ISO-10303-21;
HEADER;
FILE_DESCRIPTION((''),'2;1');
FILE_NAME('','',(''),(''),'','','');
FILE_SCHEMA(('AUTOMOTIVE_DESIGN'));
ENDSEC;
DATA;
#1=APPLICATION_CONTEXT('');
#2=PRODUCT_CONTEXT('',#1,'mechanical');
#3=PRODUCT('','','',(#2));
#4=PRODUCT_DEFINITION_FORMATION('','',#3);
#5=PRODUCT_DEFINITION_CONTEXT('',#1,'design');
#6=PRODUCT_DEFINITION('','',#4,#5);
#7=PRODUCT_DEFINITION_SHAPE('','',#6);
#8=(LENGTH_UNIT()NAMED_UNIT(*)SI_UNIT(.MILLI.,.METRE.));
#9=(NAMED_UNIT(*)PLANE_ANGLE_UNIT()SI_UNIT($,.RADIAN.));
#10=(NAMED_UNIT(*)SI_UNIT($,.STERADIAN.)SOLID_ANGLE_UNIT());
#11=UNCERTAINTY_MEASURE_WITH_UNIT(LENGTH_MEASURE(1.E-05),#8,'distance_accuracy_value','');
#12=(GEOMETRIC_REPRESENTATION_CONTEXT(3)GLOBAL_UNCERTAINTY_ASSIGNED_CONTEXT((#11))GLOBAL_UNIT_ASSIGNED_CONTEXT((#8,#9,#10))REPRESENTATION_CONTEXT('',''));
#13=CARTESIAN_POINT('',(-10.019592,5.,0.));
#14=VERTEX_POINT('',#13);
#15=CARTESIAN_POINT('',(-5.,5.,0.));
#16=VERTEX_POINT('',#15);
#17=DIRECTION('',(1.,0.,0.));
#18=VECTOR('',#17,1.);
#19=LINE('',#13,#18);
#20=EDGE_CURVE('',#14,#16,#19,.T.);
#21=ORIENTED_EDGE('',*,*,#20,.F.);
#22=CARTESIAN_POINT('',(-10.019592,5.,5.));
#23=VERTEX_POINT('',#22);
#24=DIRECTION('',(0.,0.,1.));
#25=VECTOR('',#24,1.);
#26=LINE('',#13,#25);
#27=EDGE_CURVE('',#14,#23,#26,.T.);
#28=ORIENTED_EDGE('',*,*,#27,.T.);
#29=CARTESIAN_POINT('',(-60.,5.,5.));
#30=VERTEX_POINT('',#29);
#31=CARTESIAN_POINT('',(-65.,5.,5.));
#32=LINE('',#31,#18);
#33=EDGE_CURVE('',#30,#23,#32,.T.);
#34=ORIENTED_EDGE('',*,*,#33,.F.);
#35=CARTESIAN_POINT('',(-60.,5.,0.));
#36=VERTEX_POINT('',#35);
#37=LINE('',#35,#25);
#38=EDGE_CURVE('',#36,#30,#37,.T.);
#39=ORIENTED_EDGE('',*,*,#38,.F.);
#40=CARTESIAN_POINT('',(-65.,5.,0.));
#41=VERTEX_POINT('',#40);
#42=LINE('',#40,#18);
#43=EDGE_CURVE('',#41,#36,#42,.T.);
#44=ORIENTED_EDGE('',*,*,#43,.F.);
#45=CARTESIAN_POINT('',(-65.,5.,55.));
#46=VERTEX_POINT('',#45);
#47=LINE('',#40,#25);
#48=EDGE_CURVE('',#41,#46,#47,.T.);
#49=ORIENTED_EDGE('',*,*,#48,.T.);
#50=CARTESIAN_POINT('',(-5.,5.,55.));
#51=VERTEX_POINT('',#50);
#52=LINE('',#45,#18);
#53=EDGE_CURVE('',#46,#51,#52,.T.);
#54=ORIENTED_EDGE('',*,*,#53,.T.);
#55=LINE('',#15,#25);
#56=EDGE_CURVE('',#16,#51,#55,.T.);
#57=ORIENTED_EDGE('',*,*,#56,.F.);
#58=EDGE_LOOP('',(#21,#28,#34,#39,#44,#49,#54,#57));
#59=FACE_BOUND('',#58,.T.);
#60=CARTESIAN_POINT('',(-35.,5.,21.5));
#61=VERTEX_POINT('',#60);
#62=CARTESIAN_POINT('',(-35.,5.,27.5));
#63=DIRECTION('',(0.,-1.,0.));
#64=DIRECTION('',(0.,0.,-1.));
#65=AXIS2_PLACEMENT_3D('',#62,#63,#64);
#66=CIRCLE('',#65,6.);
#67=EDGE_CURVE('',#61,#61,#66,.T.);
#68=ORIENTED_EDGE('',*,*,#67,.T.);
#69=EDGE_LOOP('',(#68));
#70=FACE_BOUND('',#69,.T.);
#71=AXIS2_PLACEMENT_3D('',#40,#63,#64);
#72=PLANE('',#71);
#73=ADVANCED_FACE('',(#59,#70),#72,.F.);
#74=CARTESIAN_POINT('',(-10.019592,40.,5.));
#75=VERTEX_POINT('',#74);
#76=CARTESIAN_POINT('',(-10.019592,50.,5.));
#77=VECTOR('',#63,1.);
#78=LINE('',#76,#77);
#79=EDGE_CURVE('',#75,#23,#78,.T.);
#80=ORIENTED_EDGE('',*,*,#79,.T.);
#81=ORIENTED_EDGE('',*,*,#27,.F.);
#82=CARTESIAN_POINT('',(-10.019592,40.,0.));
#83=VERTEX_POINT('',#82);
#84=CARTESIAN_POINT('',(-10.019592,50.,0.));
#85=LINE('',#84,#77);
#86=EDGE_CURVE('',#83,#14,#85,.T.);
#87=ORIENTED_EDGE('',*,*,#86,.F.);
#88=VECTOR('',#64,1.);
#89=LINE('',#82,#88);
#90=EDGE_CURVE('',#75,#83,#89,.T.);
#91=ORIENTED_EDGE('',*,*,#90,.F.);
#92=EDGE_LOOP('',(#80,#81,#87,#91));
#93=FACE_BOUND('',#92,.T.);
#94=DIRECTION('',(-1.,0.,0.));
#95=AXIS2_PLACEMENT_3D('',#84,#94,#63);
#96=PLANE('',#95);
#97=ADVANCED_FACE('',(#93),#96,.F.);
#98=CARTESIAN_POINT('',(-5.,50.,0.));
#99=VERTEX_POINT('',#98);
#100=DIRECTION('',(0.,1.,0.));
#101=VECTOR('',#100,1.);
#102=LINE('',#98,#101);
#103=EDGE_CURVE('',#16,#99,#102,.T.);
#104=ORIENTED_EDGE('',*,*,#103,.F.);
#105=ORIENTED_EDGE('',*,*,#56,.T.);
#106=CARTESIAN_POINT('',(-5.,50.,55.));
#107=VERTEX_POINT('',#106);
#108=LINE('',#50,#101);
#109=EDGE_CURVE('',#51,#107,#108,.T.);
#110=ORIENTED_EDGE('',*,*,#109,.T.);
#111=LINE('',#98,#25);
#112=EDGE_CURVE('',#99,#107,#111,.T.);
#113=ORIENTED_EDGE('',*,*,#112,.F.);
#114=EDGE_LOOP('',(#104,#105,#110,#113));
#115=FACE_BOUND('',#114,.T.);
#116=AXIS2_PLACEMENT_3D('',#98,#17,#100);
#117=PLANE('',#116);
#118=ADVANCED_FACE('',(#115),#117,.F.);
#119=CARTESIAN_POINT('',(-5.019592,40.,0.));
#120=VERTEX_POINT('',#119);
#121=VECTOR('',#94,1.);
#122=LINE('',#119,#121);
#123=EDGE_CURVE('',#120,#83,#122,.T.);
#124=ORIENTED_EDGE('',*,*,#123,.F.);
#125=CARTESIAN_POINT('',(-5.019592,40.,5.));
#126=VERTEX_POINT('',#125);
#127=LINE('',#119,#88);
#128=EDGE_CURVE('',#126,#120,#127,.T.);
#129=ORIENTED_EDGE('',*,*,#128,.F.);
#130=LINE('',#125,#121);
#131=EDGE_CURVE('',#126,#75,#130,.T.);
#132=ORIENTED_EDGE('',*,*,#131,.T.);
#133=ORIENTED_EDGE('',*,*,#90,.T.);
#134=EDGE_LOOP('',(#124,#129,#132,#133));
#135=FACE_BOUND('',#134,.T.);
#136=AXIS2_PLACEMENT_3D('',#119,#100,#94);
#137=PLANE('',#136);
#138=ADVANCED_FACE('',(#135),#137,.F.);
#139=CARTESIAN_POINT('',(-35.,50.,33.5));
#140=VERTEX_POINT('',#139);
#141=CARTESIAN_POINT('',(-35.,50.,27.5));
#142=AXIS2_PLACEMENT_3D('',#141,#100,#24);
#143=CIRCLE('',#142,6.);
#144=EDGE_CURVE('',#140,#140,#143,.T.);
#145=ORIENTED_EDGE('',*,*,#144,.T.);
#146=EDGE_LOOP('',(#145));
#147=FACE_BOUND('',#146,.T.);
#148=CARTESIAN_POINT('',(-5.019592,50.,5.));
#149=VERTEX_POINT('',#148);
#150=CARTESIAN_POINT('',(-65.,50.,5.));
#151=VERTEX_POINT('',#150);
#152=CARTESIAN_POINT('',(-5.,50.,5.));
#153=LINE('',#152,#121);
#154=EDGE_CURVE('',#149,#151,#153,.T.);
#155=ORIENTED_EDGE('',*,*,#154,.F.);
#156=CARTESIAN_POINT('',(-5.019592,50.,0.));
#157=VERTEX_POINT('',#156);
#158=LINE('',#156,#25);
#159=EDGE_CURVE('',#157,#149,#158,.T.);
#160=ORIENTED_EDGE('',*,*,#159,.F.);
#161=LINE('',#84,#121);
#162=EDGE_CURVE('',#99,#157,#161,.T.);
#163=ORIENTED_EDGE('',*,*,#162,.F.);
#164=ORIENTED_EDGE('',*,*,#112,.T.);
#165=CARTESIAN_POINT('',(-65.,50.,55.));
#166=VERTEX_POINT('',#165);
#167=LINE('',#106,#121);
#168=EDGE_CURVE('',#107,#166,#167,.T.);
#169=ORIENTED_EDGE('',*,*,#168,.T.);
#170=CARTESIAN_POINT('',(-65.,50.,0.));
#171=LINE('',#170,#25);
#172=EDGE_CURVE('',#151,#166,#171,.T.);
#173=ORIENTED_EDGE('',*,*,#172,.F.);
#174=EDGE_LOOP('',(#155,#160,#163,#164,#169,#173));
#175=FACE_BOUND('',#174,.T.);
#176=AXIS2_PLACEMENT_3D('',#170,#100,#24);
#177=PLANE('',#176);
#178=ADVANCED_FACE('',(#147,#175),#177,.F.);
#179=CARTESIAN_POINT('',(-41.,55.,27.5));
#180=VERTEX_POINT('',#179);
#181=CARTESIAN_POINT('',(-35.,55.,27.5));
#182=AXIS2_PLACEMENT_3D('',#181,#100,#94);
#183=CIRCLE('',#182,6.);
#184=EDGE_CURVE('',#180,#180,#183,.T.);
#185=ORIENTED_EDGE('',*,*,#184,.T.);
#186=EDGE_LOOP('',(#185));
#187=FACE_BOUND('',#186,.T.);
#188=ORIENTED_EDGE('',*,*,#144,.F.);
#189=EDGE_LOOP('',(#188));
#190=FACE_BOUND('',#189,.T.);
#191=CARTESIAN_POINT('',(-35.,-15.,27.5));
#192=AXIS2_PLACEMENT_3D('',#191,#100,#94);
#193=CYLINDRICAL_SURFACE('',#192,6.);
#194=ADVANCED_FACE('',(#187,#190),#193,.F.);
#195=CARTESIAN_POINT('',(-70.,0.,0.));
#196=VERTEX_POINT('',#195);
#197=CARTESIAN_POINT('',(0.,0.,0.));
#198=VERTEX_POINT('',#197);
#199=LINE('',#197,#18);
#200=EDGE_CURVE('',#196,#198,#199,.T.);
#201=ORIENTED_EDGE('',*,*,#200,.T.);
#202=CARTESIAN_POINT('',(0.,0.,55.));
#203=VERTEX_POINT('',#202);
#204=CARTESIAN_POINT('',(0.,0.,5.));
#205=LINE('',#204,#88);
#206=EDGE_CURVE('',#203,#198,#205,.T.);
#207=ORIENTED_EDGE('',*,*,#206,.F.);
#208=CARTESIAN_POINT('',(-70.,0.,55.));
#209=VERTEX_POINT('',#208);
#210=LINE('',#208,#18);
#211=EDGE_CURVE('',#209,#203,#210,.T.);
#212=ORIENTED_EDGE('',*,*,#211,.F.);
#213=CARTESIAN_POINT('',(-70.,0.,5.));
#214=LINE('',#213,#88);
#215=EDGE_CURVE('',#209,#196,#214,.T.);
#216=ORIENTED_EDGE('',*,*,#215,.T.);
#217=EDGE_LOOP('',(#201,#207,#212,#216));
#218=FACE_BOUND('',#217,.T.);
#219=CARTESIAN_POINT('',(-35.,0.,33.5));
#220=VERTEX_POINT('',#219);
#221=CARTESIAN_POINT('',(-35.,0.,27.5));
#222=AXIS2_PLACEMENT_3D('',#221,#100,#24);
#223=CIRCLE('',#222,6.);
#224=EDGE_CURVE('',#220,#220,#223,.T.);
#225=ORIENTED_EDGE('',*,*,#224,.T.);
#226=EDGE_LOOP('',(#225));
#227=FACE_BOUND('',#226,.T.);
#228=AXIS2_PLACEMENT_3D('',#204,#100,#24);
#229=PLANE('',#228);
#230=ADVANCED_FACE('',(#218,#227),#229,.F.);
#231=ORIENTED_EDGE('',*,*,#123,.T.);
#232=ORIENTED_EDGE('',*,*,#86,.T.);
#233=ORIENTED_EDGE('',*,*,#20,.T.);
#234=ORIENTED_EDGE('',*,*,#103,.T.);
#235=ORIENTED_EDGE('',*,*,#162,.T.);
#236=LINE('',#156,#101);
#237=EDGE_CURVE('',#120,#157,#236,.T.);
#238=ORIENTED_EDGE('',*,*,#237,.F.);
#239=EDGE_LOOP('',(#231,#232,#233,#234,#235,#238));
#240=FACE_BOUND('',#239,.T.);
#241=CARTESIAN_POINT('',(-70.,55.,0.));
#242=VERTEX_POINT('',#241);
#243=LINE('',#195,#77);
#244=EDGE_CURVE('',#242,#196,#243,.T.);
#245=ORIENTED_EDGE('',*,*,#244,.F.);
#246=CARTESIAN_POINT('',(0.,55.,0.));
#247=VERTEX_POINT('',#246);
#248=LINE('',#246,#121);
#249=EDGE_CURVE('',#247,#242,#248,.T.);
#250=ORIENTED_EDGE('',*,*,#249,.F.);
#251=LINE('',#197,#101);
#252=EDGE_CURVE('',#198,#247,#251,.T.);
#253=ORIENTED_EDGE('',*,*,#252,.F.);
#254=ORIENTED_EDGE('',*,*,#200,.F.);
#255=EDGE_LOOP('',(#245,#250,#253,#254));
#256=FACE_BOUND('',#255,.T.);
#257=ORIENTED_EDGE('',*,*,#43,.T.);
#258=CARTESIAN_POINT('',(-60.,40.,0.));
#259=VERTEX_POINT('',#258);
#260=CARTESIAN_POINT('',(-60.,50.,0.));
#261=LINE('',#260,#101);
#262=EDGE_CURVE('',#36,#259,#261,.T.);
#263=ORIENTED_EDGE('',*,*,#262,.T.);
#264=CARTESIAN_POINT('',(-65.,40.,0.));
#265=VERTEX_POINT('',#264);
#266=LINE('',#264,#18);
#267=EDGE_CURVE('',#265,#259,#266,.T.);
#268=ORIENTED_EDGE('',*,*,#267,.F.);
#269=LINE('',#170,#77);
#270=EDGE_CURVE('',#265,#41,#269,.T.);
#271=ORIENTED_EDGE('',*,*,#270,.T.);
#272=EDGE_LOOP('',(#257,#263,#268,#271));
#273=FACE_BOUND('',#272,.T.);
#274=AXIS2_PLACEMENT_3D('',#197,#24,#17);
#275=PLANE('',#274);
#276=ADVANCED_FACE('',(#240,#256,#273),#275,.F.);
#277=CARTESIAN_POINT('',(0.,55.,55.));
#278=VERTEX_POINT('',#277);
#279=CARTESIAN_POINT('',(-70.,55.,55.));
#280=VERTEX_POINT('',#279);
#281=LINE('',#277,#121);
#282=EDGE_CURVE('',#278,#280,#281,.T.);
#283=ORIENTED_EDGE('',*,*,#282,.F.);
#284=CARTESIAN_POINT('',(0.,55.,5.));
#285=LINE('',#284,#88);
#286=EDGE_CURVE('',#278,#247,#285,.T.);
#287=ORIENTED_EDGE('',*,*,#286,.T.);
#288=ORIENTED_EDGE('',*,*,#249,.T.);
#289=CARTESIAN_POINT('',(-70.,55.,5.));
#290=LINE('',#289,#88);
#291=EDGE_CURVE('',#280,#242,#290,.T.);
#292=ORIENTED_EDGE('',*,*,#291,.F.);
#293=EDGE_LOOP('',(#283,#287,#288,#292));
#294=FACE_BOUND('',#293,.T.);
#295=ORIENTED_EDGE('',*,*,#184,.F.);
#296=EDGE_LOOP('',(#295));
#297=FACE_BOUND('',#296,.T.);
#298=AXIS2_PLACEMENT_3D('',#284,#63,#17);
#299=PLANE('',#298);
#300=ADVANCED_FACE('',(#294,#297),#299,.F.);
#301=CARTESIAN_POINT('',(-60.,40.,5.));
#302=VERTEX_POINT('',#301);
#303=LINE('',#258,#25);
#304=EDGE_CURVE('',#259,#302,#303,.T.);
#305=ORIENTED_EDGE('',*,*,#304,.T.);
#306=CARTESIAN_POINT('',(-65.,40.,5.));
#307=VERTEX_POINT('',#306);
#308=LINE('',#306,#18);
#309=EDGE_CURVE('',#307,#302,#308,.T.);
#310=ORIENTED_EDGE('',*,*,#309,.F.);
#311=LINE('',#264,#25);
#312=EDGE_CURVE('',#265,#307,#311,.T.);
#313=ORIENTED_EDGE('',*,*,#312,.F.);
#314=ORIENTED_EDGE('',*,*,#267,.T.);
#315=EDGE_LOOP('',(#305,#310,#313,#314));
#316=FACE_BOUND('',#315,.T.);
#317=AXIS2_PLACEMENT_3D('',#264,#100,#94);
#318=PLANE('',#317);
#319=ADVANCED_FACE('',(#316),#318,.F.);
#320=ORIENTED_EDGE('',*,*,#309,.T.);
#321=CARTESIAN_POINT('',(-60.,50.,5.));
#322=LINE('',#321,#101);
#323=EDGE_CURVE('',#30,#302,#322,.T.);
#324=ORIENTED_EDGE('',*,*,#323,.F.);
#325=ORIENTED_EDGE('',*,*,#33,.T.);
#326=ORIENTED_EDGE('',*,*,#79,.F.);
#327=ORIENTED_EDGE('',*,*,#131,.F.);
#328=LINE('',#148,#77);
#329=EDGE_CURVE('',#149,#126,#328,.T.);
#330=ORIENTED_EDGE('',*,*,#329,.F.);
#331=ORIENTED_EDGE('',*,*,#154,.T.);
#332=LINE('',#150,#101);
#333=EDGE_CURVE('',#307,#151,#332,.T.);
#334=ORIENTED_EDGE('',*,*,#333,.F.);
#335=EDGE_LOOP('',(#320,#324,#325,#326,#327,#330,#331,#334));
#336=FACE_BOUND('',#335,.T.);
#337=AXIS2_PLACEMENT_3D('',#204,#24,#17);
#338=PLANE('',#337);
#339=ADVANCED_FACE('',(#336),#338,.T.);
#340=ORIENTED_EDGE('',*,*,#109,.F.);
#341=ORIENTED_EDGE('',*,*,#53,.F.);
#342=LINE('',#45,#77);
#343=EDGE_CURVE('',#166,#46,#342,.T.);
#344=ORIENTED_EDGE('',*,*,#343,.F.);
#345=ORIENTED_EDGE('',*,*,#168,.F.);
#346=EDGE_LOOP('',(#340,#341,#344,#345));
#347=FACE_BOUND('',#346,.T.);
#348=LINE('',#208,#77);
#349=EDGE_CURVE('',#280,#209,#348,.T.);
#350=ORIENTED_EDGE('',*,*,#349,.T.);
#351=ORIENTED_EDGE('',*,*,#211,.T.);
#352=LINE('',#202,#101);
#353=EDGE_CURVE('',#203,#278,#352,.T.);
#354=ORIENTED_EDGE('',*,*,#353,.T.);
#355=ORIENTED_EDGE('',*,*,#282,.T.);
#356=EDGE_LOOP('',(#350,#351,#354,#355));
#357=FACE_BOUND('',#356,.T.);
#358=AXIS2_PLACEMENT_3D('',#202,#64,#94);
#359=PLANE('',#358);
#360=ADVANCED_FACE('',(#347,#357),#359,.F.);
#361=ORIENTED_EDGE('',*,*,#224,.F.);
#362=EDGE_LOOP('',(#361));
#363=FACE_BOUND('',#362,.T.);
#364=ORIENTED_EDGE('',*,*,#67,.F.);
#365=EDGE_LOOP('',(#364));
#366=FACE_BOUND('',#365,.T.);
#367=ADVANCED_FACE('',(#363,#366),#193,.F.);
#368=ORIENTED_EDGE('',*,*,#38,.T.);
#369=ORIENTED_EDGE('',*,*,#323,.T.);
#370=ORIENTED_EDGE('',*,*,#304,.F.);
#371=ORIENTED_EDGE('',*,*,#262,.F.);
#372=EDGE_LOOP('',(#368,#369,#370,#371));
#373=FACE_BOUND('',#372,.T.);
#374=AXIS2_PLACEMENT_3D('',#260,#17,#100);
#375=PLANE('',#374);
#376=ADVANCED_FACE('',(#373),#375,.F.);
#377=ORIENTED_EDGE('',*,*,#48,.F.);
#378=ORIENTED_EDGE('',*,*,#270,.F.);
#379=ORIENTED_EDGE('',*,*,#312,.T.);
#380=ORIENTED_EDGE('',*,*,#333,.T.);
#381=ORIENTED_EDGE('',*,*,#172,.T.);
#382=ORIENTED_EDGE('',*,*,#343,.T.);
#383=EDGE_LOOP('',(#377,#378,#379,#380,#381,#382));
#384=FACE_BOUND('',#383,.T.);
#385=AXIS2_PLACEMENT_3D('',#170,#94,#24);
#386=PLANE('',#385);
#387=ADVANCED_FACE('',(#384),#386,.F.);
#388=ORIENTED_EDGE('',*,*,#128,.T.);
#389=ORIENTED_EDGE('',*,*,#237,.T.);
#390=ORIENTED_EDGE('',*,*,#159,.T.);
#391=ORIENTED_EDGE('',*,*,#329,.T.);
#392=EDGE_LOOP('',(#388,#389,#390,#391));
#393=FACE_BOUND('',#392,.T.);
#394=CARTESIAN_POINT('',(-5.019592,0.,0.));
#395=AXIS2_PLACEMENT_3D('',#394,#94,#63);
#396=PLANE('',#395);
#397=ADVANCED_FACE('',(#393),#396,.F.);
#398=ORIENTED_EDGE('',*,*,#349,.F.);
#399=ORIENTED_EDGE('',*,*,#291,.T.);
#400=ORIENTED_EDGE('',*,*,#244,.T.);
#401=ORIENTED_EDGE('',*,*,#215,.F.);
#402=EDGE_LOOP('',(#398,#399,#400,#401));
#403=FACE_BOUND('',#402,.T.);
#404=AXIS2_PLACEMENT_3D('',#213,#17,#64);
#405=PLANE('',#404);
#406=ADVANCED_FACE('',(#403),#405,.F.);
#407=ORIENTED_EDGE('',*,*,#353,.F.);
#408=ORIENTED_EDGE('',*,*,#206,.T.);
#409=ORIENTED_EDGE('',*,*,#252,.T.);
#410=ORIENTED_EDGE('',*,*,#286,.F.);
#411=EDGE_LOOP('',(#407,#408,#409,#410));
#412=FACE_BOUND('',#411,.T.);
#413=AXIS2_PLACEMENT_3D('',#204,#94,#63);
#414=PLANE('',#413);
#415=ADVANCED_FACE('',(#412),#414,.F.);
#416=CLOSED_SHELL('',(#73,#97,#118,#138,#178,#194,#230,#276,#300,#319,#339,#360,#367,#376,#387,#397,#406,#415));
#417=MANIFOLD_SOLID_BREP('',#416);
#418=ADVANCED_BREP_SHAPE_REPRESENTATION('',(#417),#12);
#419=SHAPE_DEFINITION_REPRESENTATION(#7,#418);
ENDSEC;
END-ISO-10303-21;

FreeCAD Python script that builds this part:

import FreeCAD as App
import Part
import Sketcher
from FreeCAD import Vector


def add_polygon(sketch, points):
    """Adds a closed chain of lines whose ends are joined by coincident constraints."""
    first, n = sketch.GeometryCount, len(points)
    for a, b in zip(points, points[1:] + points[:1]):
        sketch.addGeometry(Part.LineSegment(App.Vector(*a, 0), App.Vector(*b, 0)), False)
    for i in range(n):
        sketch.addConstraint(Sketcher.Constraint("Coincident", first + i, 2, first + (i + 1) % n, 1))

doc = App.newDocument("Part")
params = doc.addObject("Spreadsheet::Sheet", "Params")
for row, (alias, value) in enumerate([
    ("sketch1_width", "70 mm"),
    ("sketch1_height", "55 mm"),
    ("pad1_length", "5 mm"),
    ("sketch2_width", "5 mm"),
    ("sketch2_height", "45 mm"),
    ("pocket1_length", "5 mm"),
    ("sketch3_width", "70 mm"),
    ("sketch3_width2", "60 mm"),
    ("sketch3_height", "55 mm"),
    ("sketch3_height2", "45 mm"),
    ("pad2_length", "50 mm"),
    ("sketch4_diameter", "12 mm"),
    ("pocket2_length", "70 mm"),
    ("sketch5_width", "10 mm"),
    ("sketch5_height", "5 mm"),
    ("pad3_length", "5 mm"),
    ("sketch6_width", "10 mm"),
    ("sketch6_height", "5 mm"),
    ("pad4_length", "5 mm"),
], start=1):
    params.set(f"A{row}", alias)
    params.set(f"B{row}", "=" + value)
    params.setAlias(f"B{row}", alias)

body = doc.addObject("PartDesign::Body", "Body")

sketch1 = body.newObject("Sketcher::SketchObject", "Sketch")
sketch1.AttachmentSupport = (doc.getObject("XY_Plane"), [""])
sketch1.MapMode = "FlatFace"
add_polygon(sketch1, [(-70, 55), (-70, 0), (0, 0), (0, 55)])
sketch1.addConstraint([
    Sketcher.Constraint("Vertical", 0),
    Sketcher.Constraint("Horizontal", 1),
    Sketcher.Constraint("Vertical", 2),
    Sketcher.Constraint("Horizontal", 3),
    Sketcher.Constraint("Coincident", 1, 2, -1, 1),
    Sketcher.Constraint("DistanceX", 1, 1, 1, 2, 70.0),
    Sketcher.Constraint("DistanceY", 0, 2, 0, 1, 55.0),
])
sketch1.setExpression("Constraints[9]", "Params.sketch1_width")
sketch1.setExpression("Constraints[10]", "Params.sketch1_height")
pad1 = body.newObject("PartDesign::Pad", "Pad")
pad1.Profile = sketch1
pad1.setExpression("Length", "Params.pad1_length")

sketch2 = body.newObject("Sketcher::SketchObject", "Sketch001")
sketch2.AttachmentSupport = (doc.getObject("XY_Plane"), [""])
sketch2.MapMode = "FlatFace"
sketch2.AttachmentOffset = App.Placement(Vector(0, 0, 5), App.Rotation())
add_polygon(sketch2, [(-65, 50), (-65, 5), (-60, 5), (-60, 50)])
add_polygon(sketch2, [(-10, 50), (-10, 5), (-5, 5), (-5, 50)])
sketch2.addConstraint([
    Sketcher.Constraint("Vertical", 0),
    Sketcher.Constraint("Horizontal", 1),
    Sketcher.Constraint("Vertical", 2),
    Sketcher.Constraint("Horizontal", 3),
    Sketcher.Constraint("Vertical", 4),
    Sketcher.Constraint("Horizontal", 5),
    Sketcher.Constraint("Vertical", 6),
    Sketcher.Constraint("Horizontal", 7),
    Sketcher.Constraint("Horizontal", 1, 2, 4, 2),
    Sketcher.Constraint("Horizontal", 3, 2, 6, 2),
    Sketcher.Constraint("DistanceX", 1, 1, 1, 2, 5.0),
    Sketcher.Constraint("DistanceY", 0, 2, 0, 1, 45.0),
    Sketcher.Constraint("DistanceX", 0, 2, -1, 1, 65.0),
    Sketcher.Constraint("DistanceY", -1, 1, 0, 2, 5.0),
    Sketcher.Constraint("DistanceX", 5, 2, -1, 1, 5.0),
    Sketcher.Constraint("DistanceX", 5, 1, 5, 2, 5.019592),
])
sketch2.setExpression("Constraints[18]", "Params.sketch2_width")
sketch2.setExpression("Constraints[19]", "Params.sketch2_height")
pocket1 = body.newObject("PartDesign::Pocket", "Pocket")
pocket1.Profile = sketch2
pocket1.setExpression("Length", "Params.pocket1_length")

sketch3 = body.newObject("Sketcher::SketchObject", "Sketch002")
sketch3.AttachmentSupport = (doc.getObject("XY_Plane"), [""])
sketch3.MapMode = "FlatFace"
sketch3.AttachmentOffset = App.Placement(Vector(0, 0, 5), App.Rotation())
add_polygon(sketch3, [(-70, 0), (0, 0), (0, 55), (-70, 55)])
add_polygon(sketch3, [(-5, 5), (-65, 5), (-65, 50), (-5, 50)])
sketch3.addConstraint([
    Sketcher.Constraint("Horizontal", 0),
    Sketcher.Constraint("Vertical", 1),
    Sketcher.Constraint("Horizontal", 2),
    Sketcher.Constraint("Vertical", 3),
    Sketcher.Constraint("Horizontal", 4),
    Sketcher.Constraint("Vertical", 5),
    Sketcher.Constraint("Horizontal", 6),
    Sketcher.Constraint("Vertical", 7),
    Sketcher.Constraint("Coincident", 0, 2, -1, 1),
    Sketcher.Constraint("DistanceX", 0, 1, 0, 2, 70.0),
    Sketcher.Constraint("DistanceX", 4, 2, 4, 1, 60.0),
    Sketcher.Constraint("DistanceY", 1, 1, 1, 2, 55.0),
    Sketcher.Constraint("DistanceY", 5, 1, 5, 2, 45.0),
    Sketcher.Constraint("DistanceX", 4, 2, -1, 1, 65.0),
    Sketcher.Constraint("DistanceY", -1, 1, 4, 2, 5.0),
])
sketch3.setExpression("Constraints[17]", "Params.sketch3_width")
sketch3.setExpression("Constraints[18]", "Params.sketch3_width2")
sketch3.setExpression("Constraints[19]", "Params.sketch3_height")
sketch3.setExpression("Constraints[20]", "Params.sketch3_height2")
pad2 = body.newObject("PartDesign::Pad", "Pad001")
pad2.Profile = sketch3
pad2.setExpression("Length", "Params.pad2_length")

sketch4 = body.newObject("Sketcher::SketchObject", "Sketch003")
sketch4.AttachmentSupport = (doc.getObject("XZ_Plane"), [""])
sketch4.MapMode = "FlatFace"
sketch4.AttachmentOffset = App.Placement(Vector(0, 0, -55), App.Rotation())
sketch4.addGeometry(Part.Circle(Vector(-35, 28, 0), Vector(0, 0, 1), 6), False)
sketch4.addConstraint([
    Sketcher.Constraint("Diameter", 0, 12.0),
    Sketcher.Constraint("DistanceX", 0, 3, -1, 1, 35.0),
    Sketcher.Constraint("DistanceY", -1, 1, 0, 3, 27.5),
])
sketch4.setExpression("Constraints[0]", "Params.sketch4_diameter")
pocket2 = body.newObject("PartDesign::Pocket", "Pocket001")
pocket2.Profile = sketch4
pocket2.setExpression("Length", "Params.pocket2_length")
pocket2.Reversed = True

sketch5 = body.newObject("Sketcher::SketchObject", "Sketch004")
sketch5.AttachmentSupport = (doc.getObject("YZ_Plane"), [""])
sketch5.MapMode = "FlatFace"
sketch5.AttachmentOffset = App.Placement(Vector(0, 0, -10.019592), App.Rotation())
add_polygon(sketch5, [(50, 5), (40, 5), (40, 0), (50, 0)])
sketch5.addConstraint([
    Sketcher.Constraint("Horizontal", 0),
    Sketcher.Constraint("Vertical", 1),
    Sketcher.Constraint("Horizontal", 2),
    Sketcher.Constraint("Vertical", 3),
    Sketcher.Constraint("PointOnObject", 1, 2, -1),
    Sketcher.Constraint("DistanceX", 0, 2, 0, 1, 10.0),
    Sketcher.Constraint("DistanceY", 1, 2, 1, 1, 5.0),
    Sketcher.Constraint("DistanceX", -1, 1, 0, 2, 40.0),
])
sketch5.setExpression("Constraints[9]", "Params.sketch5_width")
sketch5.setExpression("Constraints[10]", "Params.sketch5_height")
pad3 = body.newObject("PartDesign::Pad", "Pad002")
pad3.Profile = sketch5
pad3.setExpression("Length", "Params.pad3_length")

sketch6 = body.newObject("Sketcher::SketchObject", "Sketch005")
sketch6.AttachmentSupport = (doc.getObject("YZ_Plane"), [""])
sketch6.MapMode = "FlatFace"
sketch6.AttachmentOffset = App.Placement(Vector(0, 0, -60), App.Rotation())
add_polygon(sketch6, [(50, 0), (40, 0), (40, 5), (50, 5)])
sketch6.addConstraint([
    Sketcher.Constraint("Horizontal", 0),
    Sketcher.Constraint("Vertical", 1),
    Sketcher.Constraint("Horizontal", 2),
    Sketcher.Constraint("Vertical", 3),
    Sketcher.Constraint("PointOnObject", 0, 2, -1),
    Sketcher.Constraint("DistanceX", 0, 2, 0, 1, 10.0),
    Sketcher.Constraint("DistanceY", 1, 1, 1, 2, 5.0),
    Sketcher.Constraint("DistanceX", -1, 1, 0, 2, 40.0),
])
sketch6.setExpression("Constraints[9]", "Params.sketch6_width")
sketch6.setExpression("Constraints[10]", "Params.sketch6_height")
pad4 = body.newObject("PartDesign::Pad", "Pad003")
pad4.Profile = sketch6
pad4.setExpression("Length", "Params.pad4_length")
pad4.Reversed = True

doc.recompute()
